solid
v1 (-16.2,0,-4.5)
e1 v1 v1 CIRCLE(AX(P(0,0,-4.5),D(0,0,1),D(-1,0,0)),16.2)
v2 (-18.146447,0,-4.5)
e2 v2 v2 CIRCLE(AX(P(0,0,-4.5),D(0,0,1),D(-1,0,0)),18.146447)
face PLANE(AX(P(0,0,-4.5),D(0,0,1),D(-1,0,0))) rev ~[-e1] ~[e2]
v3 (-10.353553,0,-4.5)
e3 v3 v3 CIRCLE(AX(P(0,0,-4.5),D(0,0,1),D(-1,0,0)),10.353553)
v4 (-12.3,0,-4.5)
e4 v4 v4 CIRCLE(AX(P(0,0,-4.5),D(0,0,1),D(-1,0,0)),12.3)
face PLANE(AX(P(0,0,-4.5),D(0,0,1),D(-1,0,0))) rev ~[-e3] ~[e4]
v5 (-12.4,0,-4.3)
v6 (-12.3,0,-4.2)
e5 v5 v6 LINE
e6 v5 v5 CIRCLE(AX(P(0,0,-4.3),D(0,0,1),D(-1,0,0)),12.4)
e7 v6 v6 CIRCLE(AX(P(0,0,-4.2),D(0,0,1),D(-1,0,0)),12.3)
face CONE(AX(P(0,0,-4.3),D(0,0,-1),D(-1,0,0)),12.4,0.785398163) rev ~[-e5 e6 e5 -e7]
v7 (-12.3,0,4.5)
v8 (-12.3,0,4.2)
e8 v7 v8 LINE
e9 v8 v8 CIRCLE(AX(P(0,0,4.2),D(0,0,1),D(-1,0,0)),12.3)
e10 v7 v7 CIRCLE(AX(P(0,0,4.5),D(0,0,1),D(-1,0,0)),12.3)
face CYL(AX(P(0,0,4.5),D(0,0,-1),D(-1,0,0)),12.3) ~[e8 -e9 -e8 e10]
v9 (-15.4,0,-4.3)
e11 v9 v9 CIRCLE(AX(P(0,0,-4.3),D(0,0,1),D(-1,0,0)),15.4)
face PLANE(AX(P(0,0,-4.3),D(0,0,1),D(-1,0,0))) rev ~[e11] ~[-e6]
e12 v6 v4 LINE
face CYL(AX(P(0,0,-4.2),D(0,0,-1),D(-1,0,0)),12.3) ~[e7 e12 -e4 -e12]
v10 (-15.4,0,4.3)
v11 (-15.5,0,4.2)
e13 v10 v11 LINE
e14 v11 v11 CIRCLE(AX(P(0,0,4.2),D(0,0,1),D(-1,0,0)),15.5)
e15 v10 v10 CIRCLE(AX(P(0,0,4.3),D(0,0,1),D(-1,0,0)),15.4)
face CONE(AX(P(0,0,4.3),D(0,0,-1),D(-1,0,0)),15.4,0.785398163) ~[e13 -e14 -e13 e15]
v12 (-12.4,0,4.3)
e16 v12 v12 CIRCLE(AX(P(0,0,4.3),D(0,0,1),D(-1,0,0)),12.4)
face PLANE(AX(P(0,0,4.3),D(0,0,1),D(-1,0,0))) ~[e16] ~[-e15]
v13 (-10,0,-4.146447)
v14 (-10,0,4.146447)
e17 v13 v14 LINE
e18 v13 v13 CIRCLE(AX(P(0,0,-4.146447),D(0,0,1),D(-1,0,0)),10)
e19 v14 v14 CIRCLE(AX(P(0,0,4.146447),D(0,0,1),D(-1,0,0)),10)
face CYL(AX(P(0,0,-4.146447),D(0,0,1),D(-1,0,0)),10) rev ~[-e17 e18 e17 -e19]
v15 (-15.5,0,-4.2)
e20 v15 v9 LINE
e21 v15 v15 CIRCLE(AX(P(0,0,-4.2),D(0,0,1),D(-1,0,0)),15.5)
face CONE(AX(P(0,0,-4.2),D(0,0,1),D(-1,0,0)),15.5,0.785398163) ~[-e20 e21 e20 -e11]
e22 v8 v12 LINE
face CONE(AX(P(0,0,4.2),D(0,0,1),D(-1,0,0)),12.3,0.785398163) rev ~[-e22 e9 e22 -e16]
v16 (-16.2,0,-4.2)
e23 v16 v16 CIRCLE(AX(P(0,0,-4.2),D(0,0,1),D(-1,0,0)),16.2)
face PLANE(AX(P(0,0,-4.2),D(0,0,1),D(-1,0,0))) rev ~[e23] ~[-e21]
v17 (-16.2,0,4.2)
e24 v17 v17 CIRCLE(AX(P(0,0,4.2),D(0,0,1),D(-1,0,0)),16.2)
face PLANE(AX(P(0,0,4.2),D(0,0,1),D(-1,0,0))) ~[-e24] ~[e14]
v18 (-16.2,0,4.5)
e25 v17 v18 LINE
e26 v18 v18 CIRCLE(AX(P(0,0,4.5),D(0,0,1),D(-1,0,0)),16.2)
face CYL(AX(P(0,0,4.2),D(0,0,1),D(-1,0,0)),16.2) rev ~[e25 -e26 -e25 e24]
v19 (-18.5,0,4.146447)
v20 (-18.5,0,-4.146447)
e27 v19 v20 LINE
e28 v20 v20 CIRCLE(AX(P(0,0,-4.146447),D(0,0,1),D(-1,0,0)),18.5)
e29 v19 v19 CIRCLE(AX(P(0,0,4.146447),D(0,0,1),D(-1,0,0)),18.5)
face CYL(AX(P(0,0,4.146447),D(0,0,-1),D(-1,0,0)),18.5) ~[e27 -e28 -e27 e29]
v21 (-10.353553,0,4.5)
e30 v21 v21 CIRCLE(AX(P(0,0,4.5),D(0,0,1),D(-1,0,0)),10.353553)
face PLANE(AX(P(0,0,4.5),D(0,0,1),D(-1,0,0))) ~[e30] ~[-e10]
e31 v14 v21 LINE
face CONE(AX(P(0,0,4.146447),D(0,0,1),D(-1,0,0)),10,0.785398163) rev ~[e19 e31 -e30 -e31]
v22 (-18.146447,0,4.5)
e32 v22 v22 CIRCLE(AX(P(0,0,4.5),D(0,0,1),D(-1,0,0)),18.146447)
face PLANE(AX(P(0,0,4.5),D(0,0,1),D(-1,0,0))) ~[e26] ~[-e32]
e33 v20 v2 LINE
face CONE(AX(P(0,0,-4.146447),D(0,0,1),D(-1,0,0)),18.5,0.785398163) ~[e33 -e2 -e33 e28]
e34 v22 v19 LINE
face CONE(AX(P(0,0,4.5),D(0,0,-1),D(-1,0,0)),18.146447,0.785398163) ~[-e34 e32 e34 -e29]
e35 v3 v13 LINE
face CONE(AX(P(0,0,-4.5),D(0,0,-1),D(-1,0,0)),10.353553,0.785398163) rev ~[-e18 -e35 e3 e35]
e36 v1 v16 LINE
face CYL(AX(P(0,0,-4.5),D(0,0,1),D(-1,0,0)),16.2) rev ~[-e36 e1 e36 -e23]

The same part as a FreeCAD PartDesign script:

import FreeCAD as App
import Part
import Sketcher

V = App.Vector


def add_polygon(sketch, points):
    """Adds a closed chain of lines whose ends are joined by coincident constraints."""
    first, n = sketch.GeometryCount, len(points)
    for a, b in zip(points, points[1:] + points[:1]):
        sketch.addGeometry(Part.LineSegment(App.Vector(*a, 0), App.Vector(*b, 0)), False)
    for i in range(n):
        sketch.addConstraint(Sketcher.Constraint("Coincident", first + i, 2, first + (i + 1) % n, 1))

doc = App.newDocument("Part")
body = doc.addObject("PartDesign::Body", "Body")

sketch1 = body.newObject("Sketcher::SketchObject", "Sketch")
sketch1.AttachmentSupport = (doc.getObject("XZ_Plane"), [""])
sketch1.MapMode = "FlatFace"
add_polygon(sketch1, [(-18.5, 4.15), (-18.5, -4.15), (-18.15, -4.5), (-16.2, -4.5), (-16.2, -4.2), (-15.5, -4.2), (-15.4, -4.3), (-12.4, -4.3), (-12.3, -4.2), (-12.3, -4.5), (-10.35, -4.5), (-10, -4.15), (-10, 4.15), (-10.35, 4.5), (-12.3, 4.5), (-12.3, 4.2), (-12.4, 4.3), (-15.4, 4.3), (-15.5, 4.2), (-16.2, 4.2), (-16.2, 4.5), (-18.15, 4.5)])
sketch1.addConstraint([
    Sketcher.Constraint("Vertical", 0),
    Sketcher.Constraint("Horizontal", 2),
    Sketcher.Constraint("Vertical", 3),
    Sketcher.Constraint("Horizontal", 4),
    Sketcher.Constraint("Horizontal", 6),
    Sketcher.Constraint("Vertical", 8),
    Sketcher.Constraint("Horizontal", 9),
    Sketcher.Constraint("Vertical", 11),
    Sketcher.Constraint("Horizontal", 13),
    Sketcher.Constraint("Vertical", 14),
    Sketcher.Constraint("Horizontal", 16),
    Sketcher.Constraint("Horizontal", 18),
    Sketcher.Constraint("Vertical", 19),
    Sketcher.Constraint("Horizontal", 20),
    Sketcher.Constraint("Symmetric", 9, 2, 12, 2, -1),
    Sketcher.Constraint("Symmetric", 7, 2, 14, 2, -1),
    Sketcher.Constraint("Symmetric", 6, 2, 15, 2, -1),
    Sketcher.Constraint("Symmetric", 4, 2, 17, 2, -1),
    Sketcher.Constraint("Symmetric", 2, 2, 19, 2, -1),
    Sketcher.Constraint("Parallel", 1, 5),
    Sketcher.Constraint("Perpendicular", 5, 7),
    Sketcher.Constraint("Parallel", 7, 10),
    Sketcher.Constraint("Perpendicular", 10, 12),
    Sketcher.Constraint("Parallel", 12, 15),
    Sketcher.Constraint("Perpendicular", 15, 17),
    Sketcher.Constraint("Parallel", 17, 21),
    Sketcher.Constraint("Horizontal", 4, 2, 7, 2),
    Sketcher.Constraint("Horizontal", 2, 2, 8, 2),
    Sketcher.Constraint("Horizontal", 0, 2, 10, 2),
    Sketcher.Constraint("Horizontal", 11, 2, 21, 2),
    Sketcher.Constraint("Equal", 2, 9),
    Sketcher.Constraint("DistanceX", 6, 1, 6, 2, 3.0),
    Sketcher.Constraint("DistanceX", 4, 1, 4, 2, 0.7),
    Sketcher.Constraint("DistanceY", 3, 1, 3, 2, 0.3),
    Sketcher.Constraint("DistanceX", 10, 2, -1, 1, 10.0),
    Sketcher.Constraint("DistanceX", 0, 2, 4, 2, 3.0),
    Sketcher.Constraint("DistanceY", 9, 2, 12, 2, 9.0),
    Sketcher.Constraint("Distance", 1, 0.499999),
    Sketcher.Constraint("DistanceX", 0, 2, -1, 1, 18.5),
])
revolution = body.newObject("PartDesign::Revolution", "Revolution")
revolution.Profile = sketch1
revolution.ReferenceAxis = (sketch1, ["V_Axis"])
revolution.Angle = 360

doc.recompute()
